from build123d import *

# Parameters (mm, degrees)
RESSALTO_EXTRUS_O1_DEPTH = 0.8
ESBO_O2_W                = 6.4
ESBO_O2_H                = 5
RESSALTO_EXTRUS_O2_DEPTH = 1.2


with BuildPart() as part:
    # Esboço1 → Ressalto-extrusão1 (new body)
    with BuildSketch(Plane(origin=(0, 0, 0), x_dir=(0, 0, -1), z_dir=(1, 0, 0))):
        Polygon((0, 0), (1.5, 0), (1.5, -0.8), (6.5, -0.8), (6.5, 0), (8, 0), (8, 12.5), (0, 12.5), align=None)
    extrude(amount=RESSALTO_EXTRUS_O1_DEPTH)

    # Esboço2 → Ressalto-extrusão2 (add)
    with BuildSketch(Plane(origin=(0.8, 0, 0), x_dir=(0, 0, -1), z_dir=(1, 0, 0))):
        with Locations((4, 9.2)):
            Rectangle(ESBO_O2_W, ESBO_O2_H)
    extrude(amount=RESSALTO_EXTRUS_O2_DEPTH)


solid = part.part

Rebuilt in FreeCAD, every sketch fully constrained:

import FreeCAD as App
import Part
import Sketcher
Q = App.Units.Quantity


def add_polygon(sketch, points):
    """Adds a closed chain of lines whose ends are joined by coincident constraints."""
    first, n = sketch.GeometryCount, len(points)
    for a, b in zip(points, points[1:] + points[:1]):
        sketch.addGeometry(Part.LineSegment(App.Vector(*a, 0), App.Vector(*b, 0)), False)
    for i in range(n):
        sketch.addConstraint(Sketcher.Constraint("Coincident", first + i, 2, first + (i + 1) % n, 1))

doc = App.newDocument("Part")
body = doc.addObject("PartDesign::Body", "Body")

# Sketch on YZ plane
sketch1 = body.newObject("Sketcher::SketchObject", "Sketch")
sketch1.AttachmentSupport = (doc.getObject("YZ_Plane"), [""])
sketch1.MapMode = "FlatFace"
add_polygon(sketch1, [(0, 0), (0, -1.5), (-0.8, -1.5), (-0.8, -6.5), (0, -6.5), (0, -8), (12.5, -8), (12.5, 0)])  # lines 0-7
sketch1.addConstraint([
    Sketcher.Constraint("Vertical", 0),
    Sketcher.Constraint("Horizontal", 1),
    Sketcher.Constraint("Vertical", 2),
    Sketcher.Constraint("Horizontal", 3),
    Sketcher.Constraint("Vertical", 4),
    Sketcher.Constraint("Horizontal", 5),
    Sketcher.Constraint("Vertical", 6),
    Sketcher.Constraint("Horizontal", 7),
    Sketcher.Constraint("Coincident", 7, 2, -1, 1),
    Sketcher.Constraint("PointOnObject", 3, 2, -2),
    Sketcher.Constraint("Equal", 0, 4),
    Sketcher.Constraint("DistanceY", 2, 2, 2, 1, Q("5 mm")),
    Sketcher.Constraint("DistanceY", 6, 1, 6, 2, Q("8 mm")),
    Sketcher.Constraint("DistanceX", 1, 2, 1, 1, Q("0.8 mm")),
    Sketcher.Constraint("DistanceX", 5, 1, 5, 2, Q("12.5 mm")),
])
pad1 = body.newObject("PartDesign::Pad", "Pad")
pad1.Profile = sketch1
pad1.Length = 0.8

# Sketch on YZ plane
sketch2 = body.newObject("Sketcher::SketchObject", "Sketch001")
sketch2.AttachmentSupport = (doc.getObject("YZ_Plane"), [""])
sketch2.MapMode = "FlatFace"
sketch2.AttachmentOffset = App.Placement(App.Vector(0, 0, 0.8), App.Rotation())
add_polygon(sketch2, [(11.7, -0.8), (6.7, -0.8), (6.7, -7.2), (11.7, -7.2)])  # lines 0-3
sketch2.addConstraint([
    Sketcher.Constraint("Horizontal", 0),
    Sketcher.Constraint("Vertical", 1),
    Sketcher.Constraint("Horizontal", 2),
    Sketcher.Constraint("Vertical", 3),
    Sketcher.Constraint("DistanceX", 0, 2, 0, 1, Q("5 mm")),
    Sketcher.Constraint("DistanceY", 1, 2, 1, 1, Q("6.4 mm")),
    Sketcher.Constraint("DistanceX", -1, 1, 0, 2, Q("6.7 mm")),
    Sketcher.Constraint("DistanceY", 0, 2, -1, 1, Q("0.8 mm")),
])
pad2 = body.newObject("PartDesign::Pad", "Pad001")
pad2.Profile = sketch2
pad2.Length = 1.2

doc.recompute()
